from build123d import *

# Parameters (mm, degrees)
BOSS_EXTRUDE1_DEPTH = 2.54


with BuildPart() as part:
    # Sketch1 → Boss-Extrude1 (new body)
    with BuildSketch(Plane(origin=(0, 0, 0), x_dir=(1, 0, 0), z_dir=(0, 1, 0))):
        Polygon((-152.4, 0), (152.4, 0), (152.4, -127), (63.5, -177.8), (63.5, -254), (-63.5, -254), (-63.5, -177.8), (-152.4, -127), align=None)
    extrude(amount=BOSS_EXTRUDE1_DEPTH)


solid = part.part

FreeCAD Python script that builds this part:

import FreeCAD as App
import Part
import Sketcher

V = App.Vector
Q = App.Units.Quantity

doc = App.newDocument("Part")
body = doc.addObject("PartDesign::Body", "Body")

sketch1 = doc.addObject("Sketcher::SketchObject", "Sketch")
body.addObject(sketch1)
sketch1.AttachmentSupport = (doc.XZ_Plane, [""])
sketch1.MapMode = "FlatFace"
sketch1.addGeometry(Part.LineSegment(V(152, 0, 0), V(-152, 0, 0)), False)
sketch1.addGeometry(Part.LineSegment(V(-152, 0, 0), V(-152, 127, 0)), False)
sketch1.addGeometry(Part.LineSegment(V(-152, 127, 0), V(-64, 178, 0)), False)
sketch1.addGeometry(Part.LineSegment(V(-64, 178, 0), V(-64, 254, 0)), False)
sketch1.addGeometry(Part.LineSegment(V(-64, 254, 0), V(64, 254, 0)), False)
sketch1.addGeometry(Part.LineSegment(V(64, 254, 0), V(64, 178, 0)), False)
sketch1.addGeometry(Part.LineSegment(V(64, 178, 0), V(152, 127, 0)), False)
sketch1.addGeometry(Part.LineSegment(V(152, 127, 0), V(152, 0, 0)), False)
sketch1.addConstraint(Sketcher.Constraint("Coincident", 0, 2, 1, 1))
sketch1.addConstraint(Sketcher.Constraint("Coincident", 1, 2, 2, 1))
sketch1.addConstraint(Sketcher.Constraint("Coincident", 2, 2, 3, 1))
sketch1.addConstraint(Sketcher.Constraint("Coincident", 3, 2, 4, 1))
sketch1.addConstraint(Sketcher.Constraint("Coincident", 4, 2, 5, 1))
sketch1.addConstraint(Sketcher.Constraint("Coincident", 5, 2, 6, 1))
sketch1.addConstraint(Sketcher.Constraint("Coincident", 6, 2, 7, 1))
sketch1.addConstraint(Sketcher.Constraint("Coincident", 7, 2, 0, 1))
sketch1.addConstraint(Sketcher.Constraint("Horizontal", 0))
sketch1.addConstraint(Sketcher.Constraint("Vertical", 1))
sketch1.addConstraint(Sketcher.Constraint("Vertical", 3))
sketch1.addConstraint(Sketcher.Constraint("Horizontal", 4))
sketch1.addConstraint(Sketcher.Constraint("Vertical", 5))
sketch1.addConstraint(Sketcher.Constraint("Vertical", 7))
sketch1.addConstraint(Sketcher.Constraint("Symmetric", 0, 2, 7, 2, -1, 1))
sketch1.addConstraint(Sketcher.Constraint("Symmetric", 2, 2, 5, 2, -2))
sketch1.addConstraint(Sketcher.Constraint("Horizontal", 1, 2, 6, 2))
sketch1.addConstraint(Sketcher.Constraint("Equal", 4, 1))
sketch1.addConstraint(Sketcher.Constraint("DistanceX", 0, 2, 0, 1, Q("12 in")))
sketch1.addConstraint(Sketcher.Constraint("DistanceX", 4, 1, 4, 2, Q("5 in")))
sketch1.addConstraint(Sketcher.Constraint("DistanceY", 3, 1, 3, 2, Q("3 in")))
sketch1.addConstraint(Sketcher.Constraint("DistanceY", -1, 1, 2, 2, Q("7 in")))
pad1 = doc.addObject("PartDesign::Pad", "Pad")
body.addObject(pad1)
pad1.Profile = sketch1
pad1.Length = Q("0.1 in")
pad1.Reversed = True

doc.recompute()
